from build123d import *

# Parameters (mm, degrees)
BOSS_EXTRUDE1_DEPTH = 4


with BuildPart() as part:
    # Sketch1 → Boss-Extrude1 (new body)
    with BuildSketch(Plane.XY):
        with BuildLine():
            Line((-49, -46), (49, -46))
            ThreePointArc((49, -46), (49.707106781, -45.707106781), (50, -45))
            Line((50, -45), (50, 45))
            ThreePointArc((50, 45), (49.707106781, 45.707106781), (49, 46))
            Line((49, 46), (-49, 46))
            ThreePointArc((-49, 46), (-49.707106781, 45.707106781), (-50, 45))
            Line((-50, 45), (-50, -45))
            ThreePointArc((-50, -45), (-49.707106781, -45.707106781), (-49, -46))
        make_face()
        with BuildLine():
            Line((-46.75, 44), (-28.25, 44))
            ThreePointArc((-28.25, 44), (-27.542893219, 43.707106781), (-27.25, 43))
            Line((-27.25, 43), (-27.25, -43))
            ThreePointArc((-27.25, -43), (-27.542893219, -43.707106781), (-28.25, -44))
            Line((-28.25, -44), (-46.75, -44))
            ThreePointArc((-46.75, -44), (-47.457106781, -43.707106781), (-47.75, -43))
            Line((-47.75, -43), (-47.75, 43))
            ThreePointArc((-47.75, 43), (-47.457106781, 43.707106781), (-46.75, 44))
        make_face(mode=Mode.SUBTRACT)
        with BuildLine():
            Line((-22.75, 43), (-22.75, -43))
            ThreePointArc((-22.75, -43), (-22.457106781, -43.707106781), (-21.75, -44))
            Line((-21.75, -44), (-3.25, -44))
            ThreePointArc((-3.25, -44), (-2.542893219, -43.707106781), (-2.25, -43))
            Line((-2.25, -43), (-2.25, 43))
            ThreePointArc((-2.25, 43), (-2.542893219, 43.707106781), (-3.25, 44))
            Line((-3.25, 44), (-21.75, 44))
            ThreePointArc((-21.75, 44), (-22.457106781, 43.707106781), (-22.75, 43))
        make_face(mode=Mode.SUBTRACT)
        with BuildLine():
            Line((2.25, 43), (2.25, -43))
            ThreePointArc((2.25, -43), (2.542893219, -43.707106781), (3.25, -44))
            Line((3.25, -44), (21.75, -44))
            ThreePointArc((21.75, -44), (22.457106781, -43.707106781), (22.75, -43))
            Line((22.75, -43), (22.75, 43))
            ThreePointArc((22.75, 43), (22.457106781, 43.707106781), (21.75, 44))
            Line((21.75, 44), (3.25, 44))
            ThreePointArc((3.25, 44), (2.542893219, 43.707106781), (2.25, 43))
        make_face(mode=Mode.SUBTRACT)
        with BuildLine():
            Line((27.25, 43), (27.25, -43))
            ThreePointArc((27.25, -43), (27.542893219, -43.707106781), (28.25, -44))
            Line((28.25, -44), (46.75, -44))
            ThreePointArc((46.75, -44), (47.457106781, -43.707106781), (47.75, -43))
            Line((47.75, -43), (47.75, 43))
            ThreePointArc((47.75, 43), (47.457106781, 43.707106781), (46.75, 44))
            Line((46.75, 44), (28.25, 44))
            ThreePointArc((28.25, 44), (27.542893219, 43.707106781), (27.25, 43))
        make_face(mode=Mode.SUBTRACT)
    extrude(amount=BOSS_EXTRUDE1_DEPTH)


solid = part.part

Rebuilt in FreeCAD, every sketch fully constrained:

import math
import FreeCAD as App
import Part
import Sketcher

doc = App.newDocument("Part")
body = doc.addObject("PartDesign::Body", "Body")

sketch1 = body.newObject("Sketcher::SketchObject", "Sketch")
sketch1.AttachmentSupport = (doc.getObject("XY_Plane"), [""])
sketch1.MapMode = "FlatFace"
sketch1.addGeometry(Part.LineSegment(App.Vector(-49, -46, 0), App.Vector(49, -46, 0)), False)
sketch1.addGeometry(Part.ArcOfCircle(Part.Circle(App.Vector(49, -45, 0), App.Vector(0, 0, 1), 1), math.radians(-90), math.radians(0)), False)
sketch1.addGeometry(Part.LineSegment(App.Vector(50, -45, 0), App.Vector(50, 45, 0)), False)
sketch1.addGeometry(Part.ArcOfCircle(Part.Circle(App.Vector(49, 45, 0), App.Vector(0, 0, 1), 1), math.radians(0), math.radians(90)), False)
sketch1.addGeometry(Part.LineSegment(App.Vector(49, 46, 0), App.Vector(-49, 46, 0)), False)
sketch1.addGeometry(Part.ArcOfCircle(Part.Circle(App.Vector(-49, 45, 0), App.Vector(0, 0, 1), 1), math.radians(90), math.radians(180)), False)
sketch1.addGeometry(Part.LineSegment(App.Vector(-50, 45, 0), App.Vector(-50, -45, 0)), False)
sketch1.addGeometry(Part.ArcOfCircle(Part.Circle(App.Vector(-49, -45, 0), App.Vector(0, 0, 1), 1), math.radians(-180), math.radians(-90)), False)
sketch1.addGeometry(Part.ArcOfCircle(Part.Circle(App.Vector(-46.7, 43, 0), App.Vector(0, 0, 1), 1), math.radians(90), math.radians(180)), False)
sketch1.addGeometry(Part.LineSegment(App.Vector(-46.8, 44, 0), App.Vector(-28.2, 44, 0)), False)
sketch1.addGeometry(Part.ArcOfCircle(Part.Circle(App.Vector(-28.3, 43, 0), App.Vector(0, 0, 1), 1), math.radians(0), math.radians(90)), False)
sketch1.addGeometry(Part.LineSegment(App.Vector(-27.2, 43, 0), App.Vector(-27.2, -43, 0)), False)
sketch1.addGeometry(Part.ArcOfCircle(Part.Circle(App.Vector(-28.3, -43, 0), App.Vector(0, 0, 1), 1), math.radians(-90), math.radians(0)), False)
sketch1.addGeometry(Part.LineSegment(App.Vector(-28.2, -44, 0), App.Vector(-46.8, -44, 0)), False)
sketch1.addGeometry(Part.ArcOfCircle(Part.Circle(App.Vector(-46.7, -43, 0), App.Vector(0, 0, 1), 1), math.radians(-180), math.radians(-90)), False)
sketch1.addGeometry(Part.LineSegment(App.Vector(-47.8, -43, 0), App.Vector(-47.8, 43, 0)), False)
sketch1.addGeometry(Part.LineSegment(App.Vector(-22.8, -43, 0), App.Vector(-22.8, 43, 0)), False)
sketch1.addGeometry(Part.ArcOfCircle(Part.Circle(App.Vector(-21.7, 43, 0), App.Vector(0, 0, 1), 1), math.radians(90), math.radians(180)), False)
sketch1.addGeometry(Part.LineSegment(App.Vector(-21.8, 44, 0), App.Vector(-3.2, 44, 0)), False)
sketch1.addGeometry(Part.ArcOfCircle(Part.Circle(App.Vector(-3.3, 43, 0), App.Vector(0, 0, 1), 1), math.radians(0), math.radians(90)), False)
sketch1.addGeometry(Part.LineSegment(App.Vector(-2.2, 43, 0), App.Vector(-2.2, -43, 0)), False)
sketch1.addGeometry(Part.ArcOfCircle(Part.Circle(App.Vector(-3.3, -43, 0), App.Vector(0, 0, 1), 1), math.radians(-90), math.radians(0)), False)
sketch1.addGeometry(Part.LineSegment(App.Vector(-3.2, -44, 0), App.Vector(-21.8, -44, 0)), False)
sketch1.addGeometry(Part.ArcOfCircle(Part.Circle(App.Vector(-21.7, -43, 0), App.Vector(0, 0, 1), 1), math.radians(-180), math.radians(-90)), False)
sketch1.addGeometry(Part.LineSegment(App.Vector(2.2, -43, 0), App.Vector(2.2, 43, 0)), False)
sketch1.addGeometry(Part.ArcOfCircle(Part.Circle(App.Vector(3.3, 43, 0), App.Vector(0, 0, 1), 1), math.radians(90), math.radians(180)), False)
sketch1.addGeometry(Part.LineSegment(App.Vector(3.2, 44, 0), App.Vector(21.8, 44, 0)), False)
sketch1.addGeometry(Part.ArcOfCircle(Part.Circle(App.Vector(21.7, 43, 0), App.Vector(0, 0, 1), 1), math.radians(0), math.radians(90)), False)
sketch1.addGeometry(Part.LineSegment(App.Vector(22.8, 43, 0), App.Vector(22.8, -43, 0)), False)
sketch1.addGeometry(Part.ArcOfCircle(Part.Circle(App.Vector(21.7, -43, 0), App.Vector(0, 0, 1), 1), math.radians(-90), math.radians(0)), False)
sketch1.addGeometry(Part.LineSegment(App.Vector(21.8, -44, 0), App.Vector(3.2, -44, 0)), False)
sketch1.addGeometry(Part.ArcOfCircle(Part.Circle(App.Vector(3.3, -43, 0), App.Vector(0, 0, 1), 1), math.radians(-180), math.radians(-90)), False)
sketch1.addGeometry(Part.LineSegment(App.Vector(27.2, -43, 0), App.Vector(27.2, 43, 0)), False)
sketch1.addGeometry(Part.ArcOfCircle(Part.Circle(App.Vector(28.3, 43, 0), App.Vector(0, 0, 1), 1), math.radians(90), math.radians(180)), False)
sketch1.addGeometry(Part.LineSegment(App.Vector(28.2, 44, 0), App.Vector(46.8, 44, 0)), False)
sketch1.addGeometry(Part.ArcOfCircle(Part.Circle(App.Vector(46.7, 43, 0), App.Vector(0, 0, 1), 1), math.radians(0), math.radians(90)), False)
sketch1.addGeometry(Part.LineSegment(App.Vector(47.8, 43, 0), App.Vector(47.8, -43, 0)), False)
sketch1.addGeometry(Part.ArcOfCircle(Part.Circle(App.Vector(46.7, -43, 0), App.Vector(0, 0, 1), 1), math.radians(-90), math.radians(0)), False)
sketch1.addGeometry(Part.LineSegment(App.Vector(46.8, -44, 0), App.Vector(28.2, -44, 0)), False)
sketch1.addGeometry(Part.ArcOfCircle(Part.Circle(App.Vector(28.3, -43, 0), App.Vector(0, 0, 1), 1), math.radians(-180), math.radians(-90)), False)
sketch1.addConstraint(Sketcher.Constraint("Tangent", 0, 2, 1, 1))
sketch1.addConstraint(Sketcher.Constraint("Tangent", 1, 2, 2, 1))
sketch1.addConstraint(Sketcher.Constraint("Tangent", 2, 2, 3, 1))
sketch1.addConstraint(Sketcher.Constraint("Tangent", 3, 2, 4, 1))
sketch1.addConstraint(Sketcher.Constraint("Tangent", 4, 2, 5, 1))
sketch1.addConstraint(Sketcher.Constraint("Tangent", 5, 2, 6, 1))
sketch1.addConstraint(Sketcher.Constraint("Tangent", 6, 2, 7, 1))
sketch1.addConstraint(Sketcher.Constraint("Tangent", 7, 2, 0, 1))
sketch1.addConstraint(Sketcher.Constraint("Tangent", 8, 1, 9, 1))
sketch1.addConstraint(Sketcher.Constraint("Tangent", 9, 2, 10, 2))
sketch1.addConstraint(Sketcher.Constraint("Tangent", 10, 1, 11, 1))
sketch1.addConstraint(Sketcher.Constraint("Tangent", 11, 2, 12, 2))
sketch1.addConstraint(Sketcher.Constraint("Tangent", 12, 1, 13, 1))
sketch1.addConstraint(Sketcher.Constraint("Tangent", 13, 2, 14, 2))
sketch1.addConstraint(Sketcher.Constraint("Tangent", 14, 1, 15, 1))
sketch1.addConstraint(Sketcher.Constraint("Tangent", 15, 2, 8, 2))
sketch1.addConstraint(Sketcher.Constraint("Tangent", 16, 2, 17, 2))
sketch1.addConstraint(Sketcher.Constraint("Tangent", 17, 1, 18, 1))
sketch1.addConstraint(Sketcher.Constraint("Tangent", 18, 2, 19, 2))
sketch1.addConstraint(Sketcher.Constraint("Tangent", 19, 1, 20, 1))
sketch1.addConstraint(Sketcher.Constraint("Tangent", 20, 2, 21, 2))
sketch1.addConstraint(Sketcher.Constraint("Tangent", 21, 1, 22, 1))
sketch1.addConstraint(Sketcher.Constraint("Tangent", 22, 2, 23, 2))
sketch1.addConstraint(Sketcher.Constraint("Tangent", 23, 1, 16, 1))
sketch1.addConstraint(Sketcher.Constraint("Tangent", 24, 2, 25, 2))
sketch1.addConstraint(Sketcher.Constraint("Tangent", 25, 1, 26, 1))
sketch1.addConstraint(Sketcher.Constraint("Tangent", 26, 2, 27, 2))
sketch1.addConstraint(Sketcher.Constraint("Tangent", 27, 1, 28, 1))
sketch1.addConstraint(Sketcher.Constraint("Tangent", 28, 2, 29, 2))
sketch1.addConstraint(Sketcher.Constraint("Tangent", 29, 1, 30, 1))
sketch1.addConstraint(Sketcher.Constraint("Tangent", 30, 2, 31, 2))
sketch1.addConstraint(Sketcher.Constraint("Tangent", 31, 1, 24, 1))
sketch1.addConstraint(Sketcher.Constraint("Tangent", 32, 2, 33, 2))
sketch1.addConstraint(Sketcher.Constraint("Tangent", 33, 1, 34, 1))
sketch1.addConstraint(Sketcher.Constraint("Tangent", 34, 2, 35, 2))
sketch1.addConstraint(Sketcher.Constraint("Tangent", 35, 1, 36, 1))
sketch1.addConstraint(Sketcher.Constraint("Tangent", 36, 2, 37, 2))
sketch1.addConstraint(Sketcher.Constraint("Tangent", 37, 1, 38, 1))
sketch1.addConstraint(Sketcher.Constraint("Tangent", 38, 2, 39, 2))
sketch1.addConstraint(Sketcher.Constraint("Tangent", 39, 1, 32, 1))
sketch1.addConstraint(Sketcher.Constraint("Horizontal", 0))
sketch1.addConstraint(Sketcher.Constraint("Vertical", 2))
sketch1.addConstraint(Sketcher.Constraint("Horizontal", 4))
sketch1.addConstraint(Sketcher.Constraint("Vertical", 6))
sketch1.addConstraint(Sketcher.Constraint("Horizontal", 9))
sketch1.addConstraint(Sketcher.Constraint("Vertical", 11))
sketch1.addConstraint(Sketcher.Constraint("Horizontal", 13))
sketch1.addConstraint(Sketcher.Constraint("Vertical", 15))
sketch1.addConstraint(Sketcher.Constraint("Vertical", 16))
sketch1.addConstraint(Sketcher.Constraint("Horizontal", 18))
sketch1.addConstraint(Sketcher.Constraint("Vertical", 20))
sketch1.addConstraint(Sketcher.Constraint("Horizontal", 22))
sketch1.addConstraint(Sketcher.Constraint("Vertical", 24))
sketch1.addConstraint(Sketcher.Constraint("Horizontal", 26))
sketch1.addConstraint(Sketcher.Constraint("Vertical", 28))
sketch1.addConstraint(Sketcher.Constraint("Horizontal", 30))
sketch1.addConstraint(Sketcher.Constraint("Vertical", 32))
sketch1.addConstraint(Sketcher.Constraint("Horizontal", 34))
sketch1.addConstraint(Sketcher.Constraint("Vertical", 36))
sketch1.addConstraint(Sketcher.Constraint("Horizontal", 38))
sketch1.addConstraint(Sketcher.Constraint("Equal", 1, 3))
sketch1.addConstraint(Sketcher.Constraint("Equal", 3, 5))
sketch1.addConstraint(Sketcher.Constraint("Equal", 5, 7))
sketch1.addConstraint(Sketcher.Constraint("Equal", 7, 8))
sketch1.addConstraint(Sketcher.Constraint("Equal", 8, 10))
sketch1.addConstraint(Sketcher.Constraint("Equal", 10, 12))
sketch1.addConstraint(Sketcher.Constraint("Equal", 12, 14))
sketch1.addConstraint(Sketcher.Constraint("Equal", 14, 17))
sketch1.addConstraint(Sketcher.Constraint("Equal", 17, 19))
sketch1.addConstraint(Sketcher.Constraint("Equal", 19, 21))
sketch1.addConstraint(Sketcher.Constraint("Equal", 21, 23))
sketch1.addConstraint(Sketcher.Constraint("Equal", 23, 25))
sketch1.addConstraint(Sketcher.Constraint("Equal", 25, 27))
sketch1.addConstraint(Sketcher.Constraint("Equal", 27, 29))
sketch1.addConstraint(Sketcher.Constraint("Equal", 29, 31))
sketch1.addConstraint(Sketcher.Constraint("Equal", 31, 33))
sketch1.addConstraint(Sketcher.Constraint("Equal", 33, 35))
sketch1.addConstraint(Sketcher.Constraint("Equal", 35, 37))
sketch1.addConstraint(Sketcher.Constraint("Equal", 37, 39))
sketch1.addConstraint(Sketcher.Constraint("Symmetric", 1, 3, 5, 3, -1, 1))
sketch1.addConstraint(Sketcher.Constraint("Symmetric", 21, 3, 25, 3, -1, 1))
sketch1.addConstraint(Sketcher.Constraint("Symmetric", 17, 3, 29, 3, -1, 1))
sketch1.addConstraint(Sketcher.Constraint("Symmetric", 12, 3, 33, 3, -1, 1))
sketch1.addConstraint(Sketcher.Constraint("Symmetric", 8, 3, 37, 3, -1, 1))
sketch1.addConstraint(Sketcher.Constraint("Horizontal", 10, 3, 17, 3))
sketch1.addConstraint(Sketcher.Constraint("Horizontal", 14, 3, 21, 3))
sketch1.addConstraint(Sketcher.Constraint("Horizontal", 19, 3, 25, 3))
sketch1.addConstraint(Sketcher.Constraint("Equal", 13, 18))
sketch1.addConstraint(Sketcher.Constraint("Radius", 1, 1.0))
sketch1.addConstraint(Sketcher.Constraint("DistanceX", 0, 1, 0, 2, 98.0))
sketch1.addConstraint(Sketcher.Constraint("DistanceY", 2, 1, 2, 2, 90.0))
sketch1.addConstraint(Sketcher.Constraint("DistanceY", 11, 2, 11, 1, 86.0))
sketch1.addConstraint(Sketcher.Constraint("DistanceX", 9, 1, 9, 2, 18.5))
sketch1.addConstraint(Sketcher.Constraint("DistanceX", 8, 3, 17, 3, 25.0))
sketch1.addConstraint(Sketcher.Constraint("DistanceX", 17, 3, 25, 3, 25.0))
pad1 = body.newObject("PartDesign::Pad", "Pad")
pad1.Profile = sketch1
pad1.Length = 4

doc.recompute()
